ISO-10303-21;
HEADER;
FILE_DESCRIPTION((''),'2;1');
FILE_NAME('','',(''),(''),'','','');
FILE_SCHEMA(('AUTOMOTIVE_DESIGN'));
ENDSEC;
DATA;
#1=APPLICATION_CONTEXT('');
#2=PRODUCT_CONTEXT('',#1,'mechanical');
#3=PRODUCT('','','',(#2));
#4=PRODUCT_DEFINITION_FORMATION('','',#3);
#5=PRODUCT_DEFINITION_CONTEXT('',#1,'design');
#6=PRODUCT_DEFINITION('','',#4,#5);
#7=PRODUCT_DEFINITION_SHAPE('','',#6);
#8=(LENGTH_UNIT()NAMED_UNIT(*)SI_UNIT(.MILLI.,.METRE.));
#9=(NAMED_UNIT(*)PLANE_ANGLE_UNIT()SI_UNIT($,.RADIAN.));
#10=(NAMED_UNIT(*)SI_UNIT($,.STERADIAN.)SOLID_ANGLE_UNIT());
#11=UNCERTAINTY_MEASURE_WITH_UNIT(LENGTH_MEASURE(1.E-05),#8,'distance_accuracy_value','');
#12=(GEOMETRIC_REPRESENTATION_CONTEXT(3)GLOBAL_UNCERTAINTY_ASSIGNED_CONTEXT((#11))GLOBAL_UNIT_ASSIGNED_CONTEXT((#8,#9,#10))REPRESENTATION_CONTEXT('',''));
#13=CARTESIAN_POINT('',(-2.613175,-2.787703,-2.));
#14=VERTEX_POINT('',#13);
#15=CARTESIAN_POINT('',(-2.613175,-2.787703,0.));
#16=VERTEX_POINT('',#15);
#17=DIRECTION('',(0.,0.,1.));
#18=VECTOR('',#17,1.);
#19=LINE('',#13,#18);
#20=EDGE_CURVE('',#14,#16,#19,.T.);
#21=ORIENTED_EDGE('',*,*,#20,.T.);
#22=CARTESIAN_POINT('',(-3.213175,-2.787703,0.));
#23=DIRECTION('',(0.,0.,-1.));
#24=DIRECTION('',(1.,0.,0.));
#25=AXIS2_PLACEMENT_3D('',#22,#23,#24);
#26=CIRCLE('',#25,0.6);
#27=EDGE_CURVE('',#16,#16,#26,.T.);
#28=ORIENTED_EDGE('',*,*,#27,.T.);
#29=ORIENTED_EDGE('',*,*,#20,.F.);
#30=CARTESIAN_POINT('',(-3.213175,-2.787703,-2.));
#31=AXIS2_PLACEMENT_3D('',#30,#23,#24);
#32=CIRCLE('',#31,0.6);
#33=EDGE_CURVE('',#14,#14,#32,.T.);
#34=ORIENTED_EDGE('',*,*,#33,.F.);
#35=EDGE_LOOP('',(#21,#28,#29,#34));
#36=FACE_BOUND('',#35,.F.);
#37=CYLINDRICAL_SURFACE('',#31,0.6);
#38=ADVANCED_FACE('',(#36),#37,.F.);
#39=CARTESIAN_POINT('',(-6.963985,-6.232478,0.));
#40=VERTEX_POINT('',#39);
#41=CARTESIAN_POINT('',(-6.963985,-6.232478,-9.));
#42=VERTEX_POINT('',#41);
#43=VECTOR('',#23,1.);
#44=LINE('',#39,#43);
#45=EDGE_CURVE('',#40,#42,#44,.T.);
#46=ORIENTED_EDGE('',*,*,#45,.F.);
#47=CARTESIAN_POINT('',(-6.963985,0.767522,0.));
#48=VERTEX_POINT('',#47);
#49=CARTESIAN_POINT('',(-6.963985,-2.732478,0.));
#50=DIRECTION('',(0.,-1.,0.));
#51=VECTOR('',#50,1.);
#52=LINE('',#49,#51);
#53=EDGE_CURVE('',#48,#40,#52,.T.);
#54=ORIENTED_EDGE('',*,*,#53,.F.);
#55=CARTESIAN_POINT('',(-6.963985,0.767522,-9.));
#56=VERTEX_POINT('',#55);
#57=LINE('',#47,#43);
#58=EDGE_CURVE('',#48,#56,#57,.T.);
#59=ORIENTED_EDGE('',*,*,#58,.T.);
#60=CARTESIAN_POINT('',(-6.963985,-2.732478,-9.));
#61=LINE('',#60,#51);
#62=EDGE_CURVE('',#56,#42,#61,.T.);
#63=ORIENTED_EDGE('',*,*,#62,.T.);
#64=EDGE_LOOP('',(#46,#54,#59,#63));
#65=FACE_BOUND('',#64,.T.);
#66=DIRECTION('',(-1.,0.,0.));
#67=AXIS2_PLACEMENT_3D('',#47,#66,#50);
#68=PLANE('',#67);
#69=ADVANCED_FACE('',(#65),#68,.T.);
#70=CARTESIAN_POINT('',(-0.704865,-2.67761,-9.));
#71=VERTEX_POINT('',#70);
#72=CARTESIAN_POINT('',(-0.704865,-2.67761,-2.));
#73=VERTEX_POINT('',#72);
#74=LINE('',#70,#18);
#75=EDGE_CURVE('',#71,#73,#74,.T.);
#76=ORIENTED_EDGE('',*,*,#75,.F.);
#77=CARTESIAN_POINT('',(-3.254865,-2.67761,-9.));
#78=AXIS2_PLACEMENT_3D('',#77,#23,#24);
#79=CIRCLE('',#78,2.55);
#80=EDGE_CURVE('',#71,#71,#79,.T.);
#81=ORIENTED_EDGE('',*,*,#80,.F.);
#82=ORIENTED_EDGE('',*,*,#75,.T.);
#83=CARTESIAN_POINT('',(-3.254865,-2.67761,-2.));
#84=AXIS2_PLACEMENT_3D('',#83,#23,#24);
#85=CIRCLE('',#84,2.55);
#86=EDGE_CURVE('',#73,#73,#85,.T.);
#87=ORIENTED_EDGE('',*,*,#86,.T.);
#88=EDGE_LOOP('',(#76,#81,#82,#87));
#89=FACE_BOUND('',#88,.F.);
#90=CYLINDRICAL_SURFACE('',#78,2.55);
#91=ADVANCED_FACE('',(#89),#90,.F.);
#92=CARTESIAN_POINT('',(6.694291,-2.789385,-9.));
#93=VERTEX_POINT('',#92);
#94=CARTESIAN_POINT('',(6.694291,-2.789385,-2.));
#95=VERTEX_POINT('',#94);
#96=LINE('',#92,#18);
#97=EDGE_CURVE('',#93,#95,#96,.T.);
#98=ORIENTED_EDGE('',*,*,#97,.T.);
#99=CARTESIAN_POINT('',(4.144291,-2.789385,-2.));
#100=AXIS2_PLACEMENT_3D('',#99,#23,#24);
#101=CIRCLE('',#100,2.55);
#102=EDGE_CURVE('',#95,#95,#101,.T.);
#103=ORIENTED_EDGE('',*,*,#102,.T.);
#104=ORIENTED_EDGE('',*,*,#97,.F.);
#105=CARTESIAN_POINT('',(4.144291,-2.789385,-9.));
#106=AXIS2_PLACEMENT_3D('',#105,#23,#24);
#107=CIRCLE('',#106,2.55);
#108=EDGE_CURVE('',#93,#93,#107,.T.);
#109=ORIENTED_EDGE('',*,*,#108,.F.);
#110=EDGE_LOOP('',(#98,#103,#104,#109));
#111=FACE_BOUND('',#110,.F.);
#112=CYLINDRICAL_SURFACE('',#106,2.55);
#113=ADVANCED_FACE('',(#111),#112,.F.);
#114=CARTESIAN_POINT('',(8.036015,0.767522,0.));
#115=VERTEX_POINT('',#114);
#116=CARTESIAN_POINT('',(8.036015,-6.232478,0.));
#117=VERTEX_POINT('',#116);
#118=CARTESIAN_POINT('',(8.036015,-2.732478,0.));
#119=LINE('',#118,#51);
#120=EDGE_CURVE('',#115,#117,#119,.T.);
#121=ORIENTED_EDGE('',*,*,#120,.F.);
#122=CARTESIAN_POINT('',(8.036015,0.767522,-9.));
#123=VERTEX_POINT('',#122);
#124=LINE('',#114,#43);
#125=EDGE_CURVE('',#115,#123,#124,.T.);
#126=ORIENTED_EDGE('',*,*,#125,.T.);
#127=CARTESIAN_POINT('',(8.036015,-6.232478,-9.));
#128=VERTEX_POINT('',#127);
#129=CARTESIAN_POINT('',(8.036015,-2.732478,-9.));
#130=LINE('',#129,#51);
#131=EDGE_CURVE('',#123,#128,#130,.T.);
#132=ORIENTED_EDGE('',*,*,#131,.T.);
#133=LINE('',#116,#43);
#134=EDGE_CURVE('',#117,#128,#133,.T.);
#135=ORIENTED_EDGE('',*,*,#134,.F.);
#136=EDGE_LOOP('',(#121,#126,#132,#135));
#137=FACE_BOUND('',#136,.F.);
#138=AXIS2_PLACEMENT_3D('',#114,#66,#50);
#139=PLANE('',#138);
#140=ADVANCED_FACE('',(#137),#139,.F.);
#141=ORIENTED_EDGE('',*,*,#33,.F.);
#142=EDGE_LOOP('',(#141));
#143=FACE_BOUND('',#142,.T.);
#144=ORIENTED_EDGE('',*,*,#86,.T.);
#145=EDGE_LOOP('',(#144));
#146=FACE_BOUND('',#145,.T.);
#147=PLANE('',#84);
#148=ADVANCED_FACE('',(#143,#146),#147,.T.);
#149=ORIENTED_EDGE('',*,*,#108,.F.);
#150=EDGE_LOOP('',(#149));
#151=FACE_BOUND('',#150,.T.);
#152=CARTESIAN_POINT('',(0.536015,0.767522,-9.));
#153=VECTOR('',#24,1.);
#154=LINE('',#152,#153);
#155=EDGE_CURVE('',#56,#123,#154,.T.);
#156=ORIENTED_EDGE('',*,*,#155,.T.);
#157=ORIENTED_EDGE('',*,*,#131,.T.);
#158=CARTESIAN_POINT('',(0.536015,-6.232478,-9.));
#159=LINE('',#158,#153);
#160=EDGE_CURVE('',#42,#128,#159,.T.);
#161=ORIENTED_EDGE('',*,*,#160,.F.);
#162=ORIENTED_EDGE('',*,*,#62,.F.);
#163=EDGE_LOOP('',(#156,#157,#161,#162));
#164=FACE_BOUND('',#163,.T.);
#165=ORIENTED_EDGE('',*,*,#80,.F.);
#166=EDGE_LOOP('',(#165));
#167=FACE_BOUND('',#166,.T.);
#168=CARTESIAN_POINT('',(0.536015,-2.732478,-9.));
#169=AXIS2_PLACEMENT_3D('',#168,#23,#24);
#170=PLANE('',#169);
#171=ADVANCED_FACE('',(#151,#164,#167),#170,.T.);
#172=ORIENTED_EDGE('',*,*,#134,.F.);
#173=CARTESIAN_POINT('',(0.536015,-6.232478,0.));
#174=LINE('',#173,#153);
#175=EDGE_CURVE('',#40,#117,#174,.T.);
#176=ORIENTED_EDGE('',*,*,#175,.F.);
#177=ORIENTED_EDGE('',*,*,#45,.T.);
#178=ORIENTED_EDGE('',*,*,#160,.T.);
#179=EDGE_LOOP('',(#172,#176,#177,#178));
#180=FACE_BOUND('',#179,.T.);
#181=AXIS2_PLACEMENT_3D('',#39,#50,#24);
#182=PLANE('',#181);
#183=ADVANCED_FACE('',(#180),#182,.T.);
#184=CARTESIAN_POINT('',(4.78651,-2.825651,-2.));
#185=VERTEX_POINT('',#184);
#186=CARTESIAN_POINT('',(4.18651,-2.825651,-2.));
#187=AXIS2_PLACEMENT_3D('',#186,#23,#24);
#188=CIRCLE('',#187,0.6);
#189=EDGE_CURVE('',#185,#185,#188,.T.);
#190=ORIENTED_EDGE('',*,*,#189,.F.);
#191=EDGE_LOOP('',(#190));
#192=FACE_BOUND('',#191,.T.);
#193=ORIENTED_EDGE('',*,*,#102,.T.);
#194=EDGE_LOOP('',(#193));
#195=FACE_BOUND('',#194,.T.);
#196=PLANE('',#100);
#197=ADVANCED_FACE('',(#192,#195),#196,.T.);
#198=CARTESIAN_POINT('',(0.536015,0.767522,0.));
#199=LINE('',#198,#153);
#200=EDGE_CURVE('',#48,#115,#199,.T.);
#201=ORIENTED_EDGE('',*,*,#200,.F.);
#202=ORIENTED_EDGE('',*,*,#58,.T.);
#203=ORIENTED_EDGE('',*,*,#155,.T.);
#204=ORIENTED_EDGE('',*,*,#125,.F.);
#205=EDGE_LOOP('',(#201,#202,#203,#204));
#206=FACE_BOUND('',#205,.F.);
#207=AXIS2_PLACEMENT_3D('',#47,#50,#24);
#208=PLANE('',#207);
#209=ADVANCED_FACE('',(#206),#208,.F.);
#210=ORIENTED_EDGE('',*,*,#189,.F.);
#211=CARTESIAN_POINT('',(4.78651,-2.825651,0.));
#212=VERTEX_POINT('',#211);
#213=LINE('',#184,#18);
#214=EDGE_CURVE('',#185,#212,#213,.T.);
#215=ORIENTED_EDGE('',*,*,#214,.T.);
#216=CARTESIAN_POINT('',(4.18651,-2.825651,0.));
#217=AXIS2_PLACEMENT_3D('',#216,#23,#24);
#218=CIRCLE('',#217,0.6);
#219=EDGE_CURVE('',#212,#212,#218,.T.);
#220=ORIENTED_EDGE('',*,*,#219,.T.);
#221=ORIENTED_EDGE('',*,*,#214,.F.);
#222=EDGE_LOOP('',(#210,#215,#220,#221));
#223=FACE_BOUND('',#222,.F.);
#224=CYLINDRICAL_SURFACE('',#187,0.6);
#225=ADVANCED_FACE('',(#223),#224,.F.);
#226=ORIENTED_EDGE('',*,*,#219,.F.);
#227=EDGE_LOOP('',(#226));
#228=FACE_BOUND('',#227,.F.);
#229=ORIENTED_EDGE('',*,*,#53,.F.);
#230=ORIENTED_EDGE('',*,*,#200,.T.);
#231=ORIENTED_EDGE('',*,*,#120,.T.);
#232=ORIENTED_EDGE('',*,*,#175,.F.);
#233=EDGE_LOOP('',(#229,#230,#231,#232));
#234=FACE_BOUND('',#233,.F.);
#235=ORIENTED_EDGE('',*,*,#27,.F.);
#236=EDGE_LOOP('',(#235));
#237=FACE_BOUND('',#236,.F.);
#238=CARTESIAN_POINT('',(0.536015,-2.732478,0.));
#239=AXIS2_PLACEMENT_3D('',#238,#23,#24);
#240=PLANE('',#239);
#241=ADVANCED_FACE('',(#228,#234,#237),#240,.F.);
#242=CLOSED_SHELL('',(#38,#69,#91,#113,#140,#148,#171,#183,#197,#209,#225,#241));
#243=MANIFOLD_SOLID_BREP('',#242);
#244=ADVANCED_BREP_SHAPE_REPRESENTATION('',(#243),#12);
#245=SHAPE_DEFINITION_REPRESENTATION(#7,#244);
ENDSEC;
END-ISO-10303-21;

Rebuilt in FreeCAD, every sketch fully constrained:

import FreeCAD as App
import Part
import Sketcher
from FreeCAD import Vector

doc = App.newDocument("Part")
body = doc.addObject("PartDesign::Body", "Body")

# Sketch on XY plane
sketch1 = body.newObject("Sketcher::SketchObject", "Sketch")
sketch1.AttachmentSupport = (doc.getObject("XY_Plane"), [""])
sketch1.MapMode = "FlatFace"
sketch1.addGeometry(Part.LineSegment(Vector(-7, -6, 0), Vector(-7, 1, 0)), False)
sketch1.addGeometry(Part.LineSegment(Vector(-7, 1, 0), Vector(8, 1, 0)), False)
sketch1.addGeometry(Part.LineSegment(Vector(8, 1, 0), Vector(8, -6, 0)), False)
sketch1.addGeometry(Part.LineSegment(Vector(8, -6, 0), Vector(-7, -6, 0)), False)
sketch1.addConstraint(Sketcher.Constraint("Coincident", 0, 2, 1, 1))
sketch1.addConstraint(Sketcher.Constraint("Coincident", 1, 2, 2, 1))
sketch1.addConstraint(Sketcher.Constraint("Coincident", 2, 2, 3, 1))
sketch1.addConstraint(Sketcher.Constraint("Coincident", 3, 2, 0, 1))
sketch1.addConstraint(Sketcher.Constraint("Vertical", 0))
sketch1.addConstraint(Sketcher.Constraint("Horizontal", 1))
sketch1.addConstraint(Sketcher.Constraint("Vertical", 2))
sketch1.addConstraint(Sketcher.Constraint("Horizontal", 3))
sketch1.addConstraint(Sketcher.Constraint("DistanceX", 1, 1, 1, 2, 15.0))
sketch1.addConstraint(Sketcher.Constraint("DistanceY", 0, 1, 0, 2, 7.0))
sketch1.addConstraint(Sketcher.Constraint("DistanceY", 2, 2, -1, 1, 6.232478))
sketch1.addConstraint(Sketcher.Constraint("DistanceX", 0, 2, -1, 1, 6.963985))
pad1 = body.newObject("PartDesign::Pad", "Pad")
pad1.Profile = sketch1
pad1.Length = 9
pad1.Reversed = True

# Sketch on XY plane
sketch2 = body.newObject("Sketcher::SketchObject", "Sketch001")
sketch2.AttachmentSupport = (doc.getObject("XY_Plane"), [""])
sketch2.MapMode = "FlatFace"
sketch2.AttachmentOffset = App.Placement(Vector(0, 0, -9), App.Rotation())
sketch2.addGeometry(Part.Circle(Vector(-3.3, -2.7, 0), Vector(0, 0, 1), 2.5), False)
sketch2.addGeometry(Part.Circle(Vector(4.1, -2.8, 0), Vector(0, 0, 1), 2.5), False)
sketch2.addConstraint(Sketcher.Constraint("Equal", 0, 1))
sketch2.addConstraint(Sketcher.Constraint("Diameter", 0, 5.1))
sketch2.addConstraint(Sketcher.Constraint("DistanceY", 0, 3, -1, 1, 2.67761))
sketch2.addConstraint(Sketcher.Constraint("DistanceX", -1, 1, 1, 3, 4.144291))
sketch2.addConstraint(Sketcher.Constraint("DistanceX", 0, 3, -1, 1, 3.254865))
sketch2.addConstraint(Sketcher.Constraint("DistanceY", 1, 3, -1, 1, 2.789385))
pocket1 = body.newObject("PartDesign::Pocket", "Pocket")
pocket1.Profile = sketch2
pocket1.Length = 7
pocket1.Reversed = True

# Sketch on XY plane
sketch3 = body.newObject("Sketcher::SketchObject", "Sketch002")
sketch3.AttachmentSupport = (doc.getObject("XY_Plane"), [""])
sketch3.MapMode = "FlatFace"
sketch3.AttachmentOffset = App.Placement(Vector(0, 0, -2), App.Rotation())
sketch3.addGeometry(Part.Circle(Vector(-3.2, -2.8, 0), Vector(0, 0, 1), 0.6), False)
sketch3.addGeometry(Part.Circle(Vector(4.2, -2.8, 0), Vector(0, 0, 1), 0.6), False)
sketch3.addConstraint(Sketcher.Constraint("Equal", 0, 1))
sketch3.addConstraint(Sketcher.Constraint("Diameter", 0, 1.2))
sketch3.addConstraint(Sketcher.Constraint("DistanceX", -1, 1, 1, 3, 4.18651))
sketch3.addConstraint(Sketcher.Constraint("DistanceY", 1, 3, -1, 1, 2.825651))
sketch3.addConstraint(Sketcher.Constraint("DistanceY", 1, 3, 0, 3, 0.037948))
sketch3.addConstraint(Sketcher.Constraint("DistanceX", 0, 3, -1, 1, 3.213175))
pocket2 = body.newObject("PartDesign::Pocket", "Pocket001")
pocket2.Profile = sketch3
pocket2.Length = 5
pocket2.Reversed = True

doc.recompute()
